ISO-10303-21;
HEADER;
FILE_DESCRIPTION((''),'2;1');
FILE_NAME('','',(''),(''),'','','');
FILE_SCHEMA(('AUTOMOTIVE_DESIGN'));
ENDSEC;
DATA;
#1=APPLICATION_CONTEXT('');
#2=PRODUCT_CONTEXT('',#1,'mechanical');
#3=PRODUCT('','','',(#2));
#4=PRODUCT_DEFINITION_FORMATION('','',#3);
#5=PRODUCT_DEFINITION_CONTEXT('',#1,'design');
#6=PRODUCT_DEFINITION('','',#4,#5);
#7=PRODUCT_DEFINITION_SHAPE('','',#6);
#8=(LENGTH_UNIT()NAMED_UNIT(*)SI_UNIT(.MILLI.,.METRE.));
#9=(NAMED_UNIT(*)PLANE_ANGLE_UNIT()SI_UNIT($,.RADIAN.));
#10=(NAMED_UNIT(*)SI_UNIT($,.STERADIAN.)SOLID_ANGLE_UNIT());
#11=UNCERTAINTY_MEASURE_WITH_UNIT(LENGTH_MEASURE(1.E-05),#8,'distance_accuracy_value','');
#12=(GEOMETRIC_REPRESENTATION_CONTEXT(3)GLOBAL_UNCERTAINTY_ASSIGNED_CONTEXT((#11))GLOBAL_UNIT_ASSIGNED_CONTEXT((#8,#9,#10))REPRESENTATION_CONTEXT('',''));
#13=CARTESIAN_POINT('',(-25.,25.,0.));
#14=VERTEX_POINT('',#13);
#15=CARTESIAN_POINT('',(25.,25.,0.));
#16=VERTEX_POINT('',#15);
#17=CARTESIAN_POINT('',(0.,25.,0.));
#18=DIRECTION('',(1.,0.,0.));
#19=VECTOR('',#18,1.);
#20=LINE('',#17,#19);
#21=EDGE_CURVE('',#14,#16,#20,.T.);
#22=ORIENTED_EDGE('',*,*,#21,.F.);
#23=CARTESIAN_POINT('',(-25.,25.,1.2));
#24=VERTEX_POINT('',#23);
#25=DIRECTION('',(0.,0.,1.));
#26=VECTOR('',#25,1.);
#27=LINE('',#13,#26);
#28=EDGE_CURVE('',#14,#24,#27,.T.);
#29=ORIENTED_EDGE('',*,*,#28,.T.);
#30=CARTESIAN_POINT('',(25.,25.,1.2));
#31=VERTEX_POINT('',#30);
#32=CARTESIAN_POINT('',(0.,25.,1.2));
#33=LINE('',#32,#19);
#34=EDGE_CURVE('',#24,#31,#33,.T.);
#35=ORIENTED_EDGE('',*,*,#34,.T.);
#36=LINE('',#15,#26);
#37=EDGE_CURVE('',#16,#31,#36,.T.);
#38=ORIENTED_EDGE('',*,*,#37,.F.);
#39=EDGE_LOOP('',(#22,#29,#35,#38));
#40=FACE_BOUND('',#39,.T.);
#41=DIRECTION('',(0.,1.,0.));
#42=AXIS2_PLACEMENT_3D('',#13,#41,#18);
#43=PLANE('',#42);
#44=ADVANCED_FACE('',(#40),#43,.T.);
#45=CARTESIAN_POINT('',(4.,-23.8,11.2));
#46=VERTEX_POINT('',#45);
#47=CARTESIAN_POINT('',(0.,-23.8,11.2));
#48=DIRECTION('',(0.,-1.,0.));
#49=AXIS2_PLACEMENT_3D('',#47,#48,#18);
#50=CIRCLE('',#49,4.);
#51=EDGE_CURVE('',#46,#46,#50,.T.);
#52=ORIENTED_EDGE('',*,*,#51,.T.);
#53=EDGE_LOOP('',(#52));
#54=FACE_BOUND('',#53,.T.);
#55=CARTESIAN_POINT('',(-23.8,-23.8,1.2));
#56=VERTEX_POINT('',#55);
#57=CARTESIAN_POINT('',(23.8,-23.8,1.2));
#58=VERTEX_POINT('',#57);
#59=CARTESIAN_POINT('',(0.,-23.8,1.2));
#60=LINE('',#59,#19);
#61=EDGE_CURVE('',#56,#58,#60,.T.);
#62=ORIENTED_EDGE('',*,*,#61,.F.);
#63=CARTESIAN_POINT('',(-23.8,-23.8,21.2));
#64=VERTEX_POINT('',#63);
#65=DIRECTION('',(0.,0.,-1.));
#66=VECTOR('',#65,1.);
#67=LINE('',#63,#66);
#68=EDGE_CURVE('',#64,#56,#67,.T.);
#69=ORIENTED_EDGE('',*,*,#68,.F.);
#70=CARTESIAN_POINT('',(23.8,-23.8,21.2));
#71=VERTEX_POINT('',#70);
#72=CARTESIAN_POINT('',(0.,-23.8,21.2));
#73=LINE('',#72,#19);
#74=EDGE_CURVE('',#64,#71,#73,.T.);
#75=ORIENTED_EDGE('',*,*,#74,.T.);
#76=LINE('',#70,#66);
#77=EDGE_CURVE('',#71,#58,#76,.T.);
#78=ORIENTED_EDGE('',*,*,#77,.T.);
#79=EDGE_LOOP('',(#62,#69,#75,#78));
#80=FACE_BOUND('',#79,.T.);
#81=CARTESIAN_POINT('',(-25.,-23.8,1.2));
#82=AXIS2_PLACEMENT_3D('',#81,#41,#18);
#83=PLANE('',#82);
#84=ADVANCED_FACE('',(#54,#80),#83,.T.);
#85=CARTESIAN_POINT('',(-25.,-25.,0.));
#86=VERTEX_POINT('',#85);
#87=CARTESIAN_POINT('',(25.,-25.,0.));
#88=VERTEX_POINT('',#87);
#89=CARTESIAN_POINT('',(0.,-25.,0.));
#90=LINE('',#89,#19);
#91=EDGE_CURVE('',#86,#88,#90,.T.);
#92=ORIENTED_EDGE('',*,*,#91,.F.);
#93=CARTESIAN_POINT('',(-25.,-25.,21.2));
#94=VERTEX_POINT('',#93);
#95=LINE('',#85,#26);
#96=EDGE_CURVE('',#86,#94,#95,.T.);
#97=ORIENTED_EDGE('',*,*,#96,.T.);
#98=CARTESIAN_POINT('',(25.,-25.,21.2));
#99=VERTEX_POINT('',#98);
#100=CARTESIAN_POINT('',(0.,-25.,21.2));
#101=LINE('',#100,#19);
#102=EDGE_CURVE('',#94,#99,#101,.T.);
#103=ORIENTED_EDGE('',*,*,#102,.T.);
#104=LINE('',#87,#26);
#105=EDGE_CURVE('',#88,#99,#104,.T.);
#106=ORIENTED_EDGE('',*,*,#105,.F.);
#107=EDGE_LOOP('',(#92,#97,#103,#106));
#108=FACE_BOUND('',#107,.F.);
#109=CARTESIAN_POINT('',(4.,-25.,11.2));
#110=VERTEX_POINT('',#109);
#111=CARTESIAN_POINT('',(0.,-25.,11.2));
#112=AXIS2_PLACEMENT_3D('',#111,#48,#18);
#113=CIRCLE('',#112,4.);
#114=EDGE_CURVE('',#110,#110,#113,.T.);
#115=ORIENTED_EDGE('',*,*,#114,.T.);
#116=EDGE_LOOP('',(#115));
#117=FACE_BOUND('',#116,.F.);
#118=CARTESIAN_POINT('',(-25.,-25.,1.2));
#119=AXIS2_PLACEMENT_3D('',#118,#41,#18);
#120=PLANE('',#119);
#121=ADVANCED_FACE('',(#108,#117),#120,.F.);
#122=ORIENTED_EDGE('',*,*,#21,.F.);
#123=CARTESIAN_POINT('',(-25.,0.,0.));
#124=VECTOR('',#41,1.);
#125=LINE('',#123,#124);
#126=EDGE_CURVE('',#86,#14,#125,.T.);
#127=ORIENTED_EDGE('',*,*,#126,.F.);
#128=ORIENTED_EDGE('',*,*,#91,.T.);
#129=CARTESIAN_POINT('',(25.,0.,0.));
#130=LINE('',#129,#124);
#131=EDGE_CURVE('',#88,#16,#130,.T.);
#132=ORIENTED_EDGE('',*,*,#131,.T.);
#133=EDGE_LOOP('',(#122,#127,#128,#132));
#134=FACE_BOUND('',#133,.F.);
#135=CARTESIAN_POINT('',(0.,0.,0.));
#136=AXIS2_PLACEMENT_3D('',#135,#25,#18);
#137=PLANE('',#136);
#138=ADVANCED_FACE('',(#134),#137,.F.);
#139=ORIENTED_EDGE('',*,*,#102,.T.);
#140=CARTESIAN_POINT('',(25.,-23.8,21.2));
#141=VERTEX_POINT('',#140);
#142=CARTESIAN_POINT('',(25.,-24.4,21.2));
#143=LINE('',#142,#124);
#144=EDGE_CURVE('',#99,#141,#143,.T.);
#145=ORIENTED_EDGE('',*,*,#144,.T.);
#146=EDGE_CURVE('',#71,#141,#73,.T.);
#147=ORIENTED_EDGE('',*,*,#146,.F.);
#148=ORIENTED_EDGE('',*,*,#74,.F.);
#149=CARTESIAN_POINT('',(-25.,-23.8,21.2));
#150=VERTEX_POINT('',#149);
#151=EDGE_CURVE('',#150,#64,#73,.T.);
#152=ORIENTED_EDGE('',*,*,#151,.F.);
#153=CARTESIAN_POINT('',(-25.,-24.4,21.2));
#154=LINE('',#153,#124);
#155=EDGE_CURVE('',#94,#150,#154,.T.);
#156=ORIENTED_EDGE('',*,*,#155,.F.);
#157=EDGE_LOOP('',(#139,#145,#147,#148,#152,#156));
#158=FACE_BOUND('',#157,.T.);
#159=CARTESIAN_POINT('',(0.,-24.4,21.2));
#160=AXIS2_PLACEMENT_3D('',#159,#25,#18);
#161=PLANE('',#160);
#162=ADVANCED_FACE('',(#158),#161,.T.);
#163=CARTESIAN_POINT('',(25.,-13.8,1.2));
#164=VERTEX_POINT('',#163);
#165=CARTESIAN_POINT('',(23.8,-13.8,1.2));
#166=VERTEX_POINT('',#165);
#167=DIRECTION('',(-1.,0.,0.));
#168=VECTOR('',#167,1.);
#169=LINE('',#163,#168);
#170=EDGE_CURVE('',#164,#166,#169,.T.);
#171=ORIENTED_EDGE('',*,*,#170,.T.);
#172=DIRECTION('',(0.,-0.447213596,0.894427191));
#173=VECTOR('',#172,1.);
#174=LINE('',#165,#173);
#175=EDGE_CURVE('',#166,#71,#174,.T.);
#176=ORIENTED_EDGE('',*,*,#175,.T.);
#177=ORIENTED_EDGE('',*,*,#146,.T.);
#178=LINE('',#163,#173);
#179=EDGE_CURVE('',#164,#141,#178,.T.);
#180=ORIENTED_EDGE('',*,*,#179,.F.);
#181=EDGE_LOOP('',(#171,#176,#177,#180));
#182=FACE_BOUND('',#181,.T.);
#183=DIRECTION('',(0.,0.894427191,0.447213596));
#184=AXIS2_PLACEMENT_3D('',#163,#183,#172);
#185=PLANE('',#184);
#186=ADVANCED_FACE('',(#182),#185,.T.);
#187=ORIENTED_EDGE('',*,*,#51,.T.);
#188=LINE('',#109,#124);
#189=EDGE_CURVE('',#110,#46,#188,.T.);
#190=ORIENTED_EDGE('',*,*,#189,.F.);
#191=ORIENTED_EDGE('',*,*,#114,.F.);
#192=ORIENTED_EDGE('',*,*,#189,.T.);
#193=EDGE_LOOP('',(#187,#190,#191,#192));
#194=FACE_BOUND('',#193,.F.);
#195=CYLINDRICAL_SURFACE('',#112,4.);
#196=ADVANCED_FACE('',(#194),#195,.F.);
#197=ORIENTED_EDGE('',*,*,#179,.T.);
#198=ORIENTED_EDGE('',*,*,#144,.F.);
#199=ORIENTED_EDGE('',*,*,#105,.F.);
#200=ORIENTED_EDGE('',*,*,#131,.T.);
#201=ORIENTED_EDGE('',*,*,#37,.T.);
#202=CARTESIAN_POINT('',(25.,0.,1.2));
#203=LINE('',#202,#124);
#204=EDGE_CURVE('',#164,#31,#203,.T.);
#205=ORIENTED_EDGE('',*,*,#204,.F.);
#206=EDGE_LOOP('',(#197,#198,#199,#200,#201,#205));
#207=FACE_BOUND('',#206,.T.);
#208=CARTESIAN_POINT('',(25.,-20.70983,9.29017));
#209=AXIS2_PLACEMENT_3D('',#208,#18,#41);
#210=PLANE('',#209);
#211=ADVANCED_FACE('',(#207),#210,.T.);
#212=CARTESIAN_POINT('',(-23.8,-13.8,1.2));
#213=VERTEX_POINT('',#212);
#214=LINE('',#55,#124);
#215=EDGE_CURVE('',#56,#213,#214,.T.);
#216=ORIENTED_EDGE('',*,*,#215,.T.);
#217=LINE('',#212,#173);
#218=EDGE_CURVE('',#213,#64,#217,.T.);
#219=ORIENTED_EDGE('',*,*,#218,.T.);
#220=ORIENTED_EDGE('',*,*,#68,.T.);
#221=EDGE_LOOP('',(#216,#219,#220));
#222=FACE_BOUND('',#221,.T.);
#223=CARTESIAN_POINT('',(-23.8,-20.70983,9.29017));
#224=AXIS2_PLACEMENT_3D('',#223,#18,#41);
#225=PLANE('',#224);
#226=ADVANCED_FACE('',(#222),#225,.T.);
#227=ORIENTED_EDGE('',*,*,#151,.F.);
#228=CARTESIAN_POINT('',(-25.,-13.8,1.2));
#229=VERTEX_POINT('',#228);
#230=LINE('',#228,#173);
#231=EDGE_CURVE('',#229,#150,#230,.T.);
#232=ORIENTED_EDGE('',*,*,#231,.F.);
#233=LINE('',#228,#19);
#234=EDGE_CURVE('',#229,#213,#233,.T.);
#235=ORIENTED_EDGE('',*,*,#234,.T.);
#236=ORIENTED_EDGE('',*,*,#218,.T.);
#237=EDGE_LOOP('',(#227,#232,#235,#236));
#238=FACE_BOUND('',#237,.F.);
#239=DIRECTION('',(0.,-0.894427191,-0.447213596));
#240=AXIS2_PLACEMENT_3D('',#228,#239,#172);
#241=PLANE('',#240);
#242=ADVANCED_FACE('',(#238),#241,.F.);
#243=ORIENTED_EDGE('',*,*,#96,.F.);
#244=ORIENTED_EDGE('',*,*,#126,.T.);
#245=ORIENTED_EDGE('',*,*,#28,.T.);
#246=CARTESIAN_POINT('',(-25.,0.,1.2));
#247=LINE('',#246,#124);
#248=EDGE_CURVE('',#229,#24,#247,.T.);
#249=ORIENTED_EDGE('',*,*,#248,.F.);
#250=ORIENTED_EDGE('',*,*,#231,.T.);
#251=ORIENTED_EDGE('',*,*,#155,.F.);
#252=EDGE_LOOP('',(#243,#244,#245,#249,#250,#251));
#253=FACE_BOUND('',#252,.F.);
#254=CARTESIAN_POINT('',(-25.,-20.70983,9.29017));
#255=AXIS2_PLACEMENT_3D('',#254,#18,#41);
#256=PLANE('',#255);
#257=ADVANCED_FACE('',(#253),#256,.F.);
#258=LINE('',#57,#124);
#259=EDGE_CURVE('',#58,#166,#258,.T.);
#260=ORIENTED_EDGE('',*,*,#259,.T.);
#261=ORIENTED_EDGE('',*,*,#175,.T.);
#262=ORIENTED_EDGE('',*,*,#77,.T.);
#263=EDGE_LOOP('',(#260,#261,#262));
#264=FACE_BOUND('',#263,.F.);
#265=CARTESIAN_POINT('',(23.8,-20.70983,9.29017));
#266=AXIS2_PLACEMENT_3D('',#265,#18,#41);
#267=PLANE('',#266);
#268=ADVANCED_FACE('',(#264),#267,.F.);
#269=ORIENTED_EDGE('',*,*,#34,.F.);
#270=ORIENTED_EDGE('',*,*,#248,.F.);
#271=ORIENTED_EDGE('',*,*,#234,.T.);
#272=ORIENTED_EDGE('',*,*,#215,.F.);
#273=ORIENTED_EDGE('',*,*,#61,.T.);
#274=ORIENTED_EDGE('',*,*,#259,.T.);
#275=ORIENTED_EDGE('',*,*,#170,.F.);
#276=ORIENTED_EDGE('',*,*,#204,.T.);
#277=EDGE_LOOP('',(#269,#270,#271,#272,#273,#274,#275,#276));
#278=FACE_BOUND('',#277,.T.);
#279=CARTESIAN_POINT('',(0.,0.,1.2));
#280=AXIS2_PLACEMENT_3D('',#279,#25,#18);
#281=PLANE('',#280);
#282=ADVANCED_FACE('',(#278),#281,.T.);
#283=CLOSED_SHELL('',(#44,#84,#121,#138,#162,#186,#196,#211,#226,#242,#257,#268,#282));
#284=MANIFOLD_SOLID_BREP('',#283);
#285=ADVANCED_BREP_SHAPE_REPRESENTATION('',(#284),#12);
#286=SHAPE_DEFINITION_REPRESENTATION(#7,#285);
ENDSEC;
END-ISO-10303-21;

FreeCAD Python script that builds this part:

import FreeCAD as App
import Part
import Sketcher
from FreeCAD import Vector
Q = App.Units.Quantity

doc = App.newDocument("Part")
body = doc.addObject("PartDesign::Body", "Body")

# Sketch on XY plane
sketch1 = doc.addObject("Sketcher::SketchObject", "Sketch")
body.addObject(sketch1)
sketch1.AttachmentSupport = (doc.XY_Plane, [""])
sketch1.MapMode = "FlatFace"
sketch1.addGeometry([
    Part.LineSegment(Vector(-25, 25, 0), Vector(-25, -25, 0)),
    Part.LineSegment(Vector(-25, -25, 0), Vector(25, -25, 0)),
    Part.LineSegment(Vector(25, -25, 0), Vector(25, 25, 0)),
    Part.LineSegment(Vector(25, 25, 0), Vector(-25, 25, 0)),
], False)
sketch1.addConstraint([
    Sketcher.Constraint("Coincident", 0, 2, 1, 1),
    Sketcher.Constraint("Coincident", 1, 2, 2, 1),
    Sketcher.Constraint("Coincident", 2, 2, 3, 1),
    Sketcher.Constraint("Coincident", 3, 2, 0, 1),
    Sketcher.Constraint("Vertical", 0),
    Sketcher.Constraint("Horizontal", 1),
    Sketcher.Constraint("Vertical", 2),
    Sketcher.Constraint("Horizontal", 3),
    Sketcher.Constraint("Symmetric", 0, 2, 2, 2, -1, 1),
    Sketcher.Constraint("Equal", 3, 0),
    Sketcher.Constraint("DistanceX", 1, 1, 1, 2, Q("50 mm")),
])
pad1 = doc.addObject("PartDesign::Pad", "Pad")
body.addObject(pad1)
pad1.Profile = sketch1
pad1.Length = 1.2

# Sketch on XY plane
sketch2 = doc.addObject("Sketcher::SketchObject", "Sketch001")
body.addObject(sketch2)
sketch2.AttachmentSupport = (doc.XY_Plane, [""])
sketch2.MapMode = "FlatFace"
sketch2.AttachmentOffset = App.Placement(Vector(0, 0, 1.2), App.Rotation())
sketch2.addGeometry([
    Part.LineSegment(Vector(-25, -23.8, 0), Vector(-25, -25, 0)),
    Part.LineSegment(Vector(-25, -25, 0), Vector(25, -25, 0)),
    Part.LineSegment(Vector(25, -25, 0), Vector(25, -23.8, 0)),
    Part.LineSegment(Vector(25, -23.8, 0), Vector(-25, -23.8, 0)),
], False)
sketch2.addConstraint([
    Sketcher.Constraint("Coincident", 0, 2, 1, 1),
    Sketcher.Constraint("Coincident", 1, 2, 2, 1),
    Sketcher.Constraint("Coincident", 2, 2, 3, 1),
    Sketcher.Constraint("Coincident", 3, 2, 0, 1),
    Sketcher.Constraint("Vertical", 0),
    Sketcher.Constraint("Horizontal", 1),
    Sketcher.Constraint("Vertical", 2),
    Sketcher.Constraint("Horizontal", 3),
    Sketcher.Constraint("DistanceX", 1, 1, 1, 2, Q("50 mm")),
    Sketcher.Constraint("DistanceY", 0, 2, 0, 1, Q("1.2 mm")),
    Sketcher.Constraint("DistanceX", 0, 2, -1, 1, Q("25 mm")),
    Sketcher.Constraint("DistanceY", 0, 2, -1, 1, Q("25 mm")),
])
pad2 = doc.addObject("PartDesign::Pad", "Pad001")
body.addObject(pad2)
pad2.Profile = sketch2
pad2.Length = 20

# Sketch on YZ plane
sketch3 = doc.addObject("Sketcher::SketchObject", "Sketch002")
body.addObject(sketch3)
sketch3.AttachmentSupport = (doc.YZ_Plane, [""])
sketch3.MapMode = "FlatFace"
sketch3.AttachmentOffset = App.Placement(Vector(0, 0, -25), App.Rotation())
sketch3.addGeometry([
    Part.LineSegment(Vector(-24, 1, 0), Vector(-24, 21, 0)),
    Part.LineSegment(Vector(-24, 21, 0), Vector(-14, 1, 0)),
    Part.LineSegment(Vector(-14, 1, 0), Vector(-24, 1, 0)),
], False)
sketch3.addConstraint([
    Sketcher.Constraint("Coincident", 0, 2, 1, 1),
    Sketcher.Constraint("Coincident", 1, 2, 2, 1),
    Sketcher.Constraint("Coincident", 2, 2, 0, 1),
    Sketcher.Constraint("Vertical", 0),
    Sketcher.Constraint("Horizontal", 2),
    Sketcher.Constraint("DistanceX", 2, 2, 2, 1, Q("10 mm")),
    Sketcher.Constraint("DistanceY", 0, 1, 0, 2, Q("20 mm")),
    Sketcher.Constraint("DistanceX", 0, 2, -1, 1, Q("23.8 mm")),
    Sketcher.Constraint("DistanceY", -1, 1, 0, 2, Q("21.2 mm")),
])
pad3 = doc.addObject("PartDesign::Pad", "Pad002")
body.addObject(pad3)
pad3.Profile = sketch3
pad3.Length = 1.2

# Sketch on YZ plane
sketch4 = doc.addObject("Sketcher::SketchObject", "Sketch003")
body.addObject(sketch4)
sketch4.AttachmentSupport = (doc.YZ_Plane, [""])
sketch4.MapMode = "FlatFace"
sketch4.AttachmentOffset = App.Placement(Vector(0, 0, 25), App.Rotation())
sketch4.addGeometry([
    Part.LineSegment(Vector(-24, 21, 0), Vector(-24, 1, 0)),
    Part.LineSegment(Vector(-24, 1, 0), Vector(-14, 1, 0)),
    Part.LineSegment(Vector(-14, 1, 0), Vector(-24, 21, 0)),
], False)
sketch4.addConstraint([
    Sketcher.Constraint("Coincident", 0, 2, 1, 1),
    Sketcher.Constraint("Coincident", 1, 2, 2, 1),
    Sketcher.Constraint("Coincident", 2, 2, 0, 1),
    Sketcher.Constraint("Vertical", 0),
    Sketcher.Constraint("Horizontal", 1),
    Sketcher.Constraint("DistanceX", 1, 1, 1, 2, Q("10 mm")),
    Sketcher.Constraint("DistanceY", 0, 2, 0, 1, Q("20 mm")),
    Sketcher.Constraint("DistanceX", 0, 2, -1, 1, Q("23.8 mm")),
    Sketcher.Constraint("DistanceY", -1, 1, 0, 2, Q("1.2 mm")),
])
pad4 = doc.addObject("PartDesign::Pad", "Pad003")
body.addObject(pad4)
pad4.Profile = sketch4
pad4.Length = 1.2
pad4.Reversed = True

# Sketch on XZ plane
sketch5 = doc.addObject("Sketcher::SketchObject", "Sketch004")
body.addObject(sketch5)
sketch5.AttachmentSupport = (doc.XZ_Plane, [""])
sketch5.MapMode = "FlatFace"
sketch5.AttachmentOffset = App.Placement(Vector(0, 0, 25), App.Rotation())
sketch5.addGeometry(Part.Circle(Vector(0, 11.2, 0), Vector(0, 0, 1), 4), False)
sketch5.addConstraint([
    Sketcher.Constraint("PointOnObject", 0, 3, -2),
    Sketcher.Constraint("Diameter", 0, Q("8 mm")),
    Sketcher.Constraint("DistanceY", -1, 1, 0, 3, Q("11.2 mm")),
])
pocket1 = doc.addObject("PartDesign::Pocket", "Pocket")
body.addObject(pocket1)
pocket1.Profile = sketch5
pocket1.Length = 1.2

doc.recompute()
